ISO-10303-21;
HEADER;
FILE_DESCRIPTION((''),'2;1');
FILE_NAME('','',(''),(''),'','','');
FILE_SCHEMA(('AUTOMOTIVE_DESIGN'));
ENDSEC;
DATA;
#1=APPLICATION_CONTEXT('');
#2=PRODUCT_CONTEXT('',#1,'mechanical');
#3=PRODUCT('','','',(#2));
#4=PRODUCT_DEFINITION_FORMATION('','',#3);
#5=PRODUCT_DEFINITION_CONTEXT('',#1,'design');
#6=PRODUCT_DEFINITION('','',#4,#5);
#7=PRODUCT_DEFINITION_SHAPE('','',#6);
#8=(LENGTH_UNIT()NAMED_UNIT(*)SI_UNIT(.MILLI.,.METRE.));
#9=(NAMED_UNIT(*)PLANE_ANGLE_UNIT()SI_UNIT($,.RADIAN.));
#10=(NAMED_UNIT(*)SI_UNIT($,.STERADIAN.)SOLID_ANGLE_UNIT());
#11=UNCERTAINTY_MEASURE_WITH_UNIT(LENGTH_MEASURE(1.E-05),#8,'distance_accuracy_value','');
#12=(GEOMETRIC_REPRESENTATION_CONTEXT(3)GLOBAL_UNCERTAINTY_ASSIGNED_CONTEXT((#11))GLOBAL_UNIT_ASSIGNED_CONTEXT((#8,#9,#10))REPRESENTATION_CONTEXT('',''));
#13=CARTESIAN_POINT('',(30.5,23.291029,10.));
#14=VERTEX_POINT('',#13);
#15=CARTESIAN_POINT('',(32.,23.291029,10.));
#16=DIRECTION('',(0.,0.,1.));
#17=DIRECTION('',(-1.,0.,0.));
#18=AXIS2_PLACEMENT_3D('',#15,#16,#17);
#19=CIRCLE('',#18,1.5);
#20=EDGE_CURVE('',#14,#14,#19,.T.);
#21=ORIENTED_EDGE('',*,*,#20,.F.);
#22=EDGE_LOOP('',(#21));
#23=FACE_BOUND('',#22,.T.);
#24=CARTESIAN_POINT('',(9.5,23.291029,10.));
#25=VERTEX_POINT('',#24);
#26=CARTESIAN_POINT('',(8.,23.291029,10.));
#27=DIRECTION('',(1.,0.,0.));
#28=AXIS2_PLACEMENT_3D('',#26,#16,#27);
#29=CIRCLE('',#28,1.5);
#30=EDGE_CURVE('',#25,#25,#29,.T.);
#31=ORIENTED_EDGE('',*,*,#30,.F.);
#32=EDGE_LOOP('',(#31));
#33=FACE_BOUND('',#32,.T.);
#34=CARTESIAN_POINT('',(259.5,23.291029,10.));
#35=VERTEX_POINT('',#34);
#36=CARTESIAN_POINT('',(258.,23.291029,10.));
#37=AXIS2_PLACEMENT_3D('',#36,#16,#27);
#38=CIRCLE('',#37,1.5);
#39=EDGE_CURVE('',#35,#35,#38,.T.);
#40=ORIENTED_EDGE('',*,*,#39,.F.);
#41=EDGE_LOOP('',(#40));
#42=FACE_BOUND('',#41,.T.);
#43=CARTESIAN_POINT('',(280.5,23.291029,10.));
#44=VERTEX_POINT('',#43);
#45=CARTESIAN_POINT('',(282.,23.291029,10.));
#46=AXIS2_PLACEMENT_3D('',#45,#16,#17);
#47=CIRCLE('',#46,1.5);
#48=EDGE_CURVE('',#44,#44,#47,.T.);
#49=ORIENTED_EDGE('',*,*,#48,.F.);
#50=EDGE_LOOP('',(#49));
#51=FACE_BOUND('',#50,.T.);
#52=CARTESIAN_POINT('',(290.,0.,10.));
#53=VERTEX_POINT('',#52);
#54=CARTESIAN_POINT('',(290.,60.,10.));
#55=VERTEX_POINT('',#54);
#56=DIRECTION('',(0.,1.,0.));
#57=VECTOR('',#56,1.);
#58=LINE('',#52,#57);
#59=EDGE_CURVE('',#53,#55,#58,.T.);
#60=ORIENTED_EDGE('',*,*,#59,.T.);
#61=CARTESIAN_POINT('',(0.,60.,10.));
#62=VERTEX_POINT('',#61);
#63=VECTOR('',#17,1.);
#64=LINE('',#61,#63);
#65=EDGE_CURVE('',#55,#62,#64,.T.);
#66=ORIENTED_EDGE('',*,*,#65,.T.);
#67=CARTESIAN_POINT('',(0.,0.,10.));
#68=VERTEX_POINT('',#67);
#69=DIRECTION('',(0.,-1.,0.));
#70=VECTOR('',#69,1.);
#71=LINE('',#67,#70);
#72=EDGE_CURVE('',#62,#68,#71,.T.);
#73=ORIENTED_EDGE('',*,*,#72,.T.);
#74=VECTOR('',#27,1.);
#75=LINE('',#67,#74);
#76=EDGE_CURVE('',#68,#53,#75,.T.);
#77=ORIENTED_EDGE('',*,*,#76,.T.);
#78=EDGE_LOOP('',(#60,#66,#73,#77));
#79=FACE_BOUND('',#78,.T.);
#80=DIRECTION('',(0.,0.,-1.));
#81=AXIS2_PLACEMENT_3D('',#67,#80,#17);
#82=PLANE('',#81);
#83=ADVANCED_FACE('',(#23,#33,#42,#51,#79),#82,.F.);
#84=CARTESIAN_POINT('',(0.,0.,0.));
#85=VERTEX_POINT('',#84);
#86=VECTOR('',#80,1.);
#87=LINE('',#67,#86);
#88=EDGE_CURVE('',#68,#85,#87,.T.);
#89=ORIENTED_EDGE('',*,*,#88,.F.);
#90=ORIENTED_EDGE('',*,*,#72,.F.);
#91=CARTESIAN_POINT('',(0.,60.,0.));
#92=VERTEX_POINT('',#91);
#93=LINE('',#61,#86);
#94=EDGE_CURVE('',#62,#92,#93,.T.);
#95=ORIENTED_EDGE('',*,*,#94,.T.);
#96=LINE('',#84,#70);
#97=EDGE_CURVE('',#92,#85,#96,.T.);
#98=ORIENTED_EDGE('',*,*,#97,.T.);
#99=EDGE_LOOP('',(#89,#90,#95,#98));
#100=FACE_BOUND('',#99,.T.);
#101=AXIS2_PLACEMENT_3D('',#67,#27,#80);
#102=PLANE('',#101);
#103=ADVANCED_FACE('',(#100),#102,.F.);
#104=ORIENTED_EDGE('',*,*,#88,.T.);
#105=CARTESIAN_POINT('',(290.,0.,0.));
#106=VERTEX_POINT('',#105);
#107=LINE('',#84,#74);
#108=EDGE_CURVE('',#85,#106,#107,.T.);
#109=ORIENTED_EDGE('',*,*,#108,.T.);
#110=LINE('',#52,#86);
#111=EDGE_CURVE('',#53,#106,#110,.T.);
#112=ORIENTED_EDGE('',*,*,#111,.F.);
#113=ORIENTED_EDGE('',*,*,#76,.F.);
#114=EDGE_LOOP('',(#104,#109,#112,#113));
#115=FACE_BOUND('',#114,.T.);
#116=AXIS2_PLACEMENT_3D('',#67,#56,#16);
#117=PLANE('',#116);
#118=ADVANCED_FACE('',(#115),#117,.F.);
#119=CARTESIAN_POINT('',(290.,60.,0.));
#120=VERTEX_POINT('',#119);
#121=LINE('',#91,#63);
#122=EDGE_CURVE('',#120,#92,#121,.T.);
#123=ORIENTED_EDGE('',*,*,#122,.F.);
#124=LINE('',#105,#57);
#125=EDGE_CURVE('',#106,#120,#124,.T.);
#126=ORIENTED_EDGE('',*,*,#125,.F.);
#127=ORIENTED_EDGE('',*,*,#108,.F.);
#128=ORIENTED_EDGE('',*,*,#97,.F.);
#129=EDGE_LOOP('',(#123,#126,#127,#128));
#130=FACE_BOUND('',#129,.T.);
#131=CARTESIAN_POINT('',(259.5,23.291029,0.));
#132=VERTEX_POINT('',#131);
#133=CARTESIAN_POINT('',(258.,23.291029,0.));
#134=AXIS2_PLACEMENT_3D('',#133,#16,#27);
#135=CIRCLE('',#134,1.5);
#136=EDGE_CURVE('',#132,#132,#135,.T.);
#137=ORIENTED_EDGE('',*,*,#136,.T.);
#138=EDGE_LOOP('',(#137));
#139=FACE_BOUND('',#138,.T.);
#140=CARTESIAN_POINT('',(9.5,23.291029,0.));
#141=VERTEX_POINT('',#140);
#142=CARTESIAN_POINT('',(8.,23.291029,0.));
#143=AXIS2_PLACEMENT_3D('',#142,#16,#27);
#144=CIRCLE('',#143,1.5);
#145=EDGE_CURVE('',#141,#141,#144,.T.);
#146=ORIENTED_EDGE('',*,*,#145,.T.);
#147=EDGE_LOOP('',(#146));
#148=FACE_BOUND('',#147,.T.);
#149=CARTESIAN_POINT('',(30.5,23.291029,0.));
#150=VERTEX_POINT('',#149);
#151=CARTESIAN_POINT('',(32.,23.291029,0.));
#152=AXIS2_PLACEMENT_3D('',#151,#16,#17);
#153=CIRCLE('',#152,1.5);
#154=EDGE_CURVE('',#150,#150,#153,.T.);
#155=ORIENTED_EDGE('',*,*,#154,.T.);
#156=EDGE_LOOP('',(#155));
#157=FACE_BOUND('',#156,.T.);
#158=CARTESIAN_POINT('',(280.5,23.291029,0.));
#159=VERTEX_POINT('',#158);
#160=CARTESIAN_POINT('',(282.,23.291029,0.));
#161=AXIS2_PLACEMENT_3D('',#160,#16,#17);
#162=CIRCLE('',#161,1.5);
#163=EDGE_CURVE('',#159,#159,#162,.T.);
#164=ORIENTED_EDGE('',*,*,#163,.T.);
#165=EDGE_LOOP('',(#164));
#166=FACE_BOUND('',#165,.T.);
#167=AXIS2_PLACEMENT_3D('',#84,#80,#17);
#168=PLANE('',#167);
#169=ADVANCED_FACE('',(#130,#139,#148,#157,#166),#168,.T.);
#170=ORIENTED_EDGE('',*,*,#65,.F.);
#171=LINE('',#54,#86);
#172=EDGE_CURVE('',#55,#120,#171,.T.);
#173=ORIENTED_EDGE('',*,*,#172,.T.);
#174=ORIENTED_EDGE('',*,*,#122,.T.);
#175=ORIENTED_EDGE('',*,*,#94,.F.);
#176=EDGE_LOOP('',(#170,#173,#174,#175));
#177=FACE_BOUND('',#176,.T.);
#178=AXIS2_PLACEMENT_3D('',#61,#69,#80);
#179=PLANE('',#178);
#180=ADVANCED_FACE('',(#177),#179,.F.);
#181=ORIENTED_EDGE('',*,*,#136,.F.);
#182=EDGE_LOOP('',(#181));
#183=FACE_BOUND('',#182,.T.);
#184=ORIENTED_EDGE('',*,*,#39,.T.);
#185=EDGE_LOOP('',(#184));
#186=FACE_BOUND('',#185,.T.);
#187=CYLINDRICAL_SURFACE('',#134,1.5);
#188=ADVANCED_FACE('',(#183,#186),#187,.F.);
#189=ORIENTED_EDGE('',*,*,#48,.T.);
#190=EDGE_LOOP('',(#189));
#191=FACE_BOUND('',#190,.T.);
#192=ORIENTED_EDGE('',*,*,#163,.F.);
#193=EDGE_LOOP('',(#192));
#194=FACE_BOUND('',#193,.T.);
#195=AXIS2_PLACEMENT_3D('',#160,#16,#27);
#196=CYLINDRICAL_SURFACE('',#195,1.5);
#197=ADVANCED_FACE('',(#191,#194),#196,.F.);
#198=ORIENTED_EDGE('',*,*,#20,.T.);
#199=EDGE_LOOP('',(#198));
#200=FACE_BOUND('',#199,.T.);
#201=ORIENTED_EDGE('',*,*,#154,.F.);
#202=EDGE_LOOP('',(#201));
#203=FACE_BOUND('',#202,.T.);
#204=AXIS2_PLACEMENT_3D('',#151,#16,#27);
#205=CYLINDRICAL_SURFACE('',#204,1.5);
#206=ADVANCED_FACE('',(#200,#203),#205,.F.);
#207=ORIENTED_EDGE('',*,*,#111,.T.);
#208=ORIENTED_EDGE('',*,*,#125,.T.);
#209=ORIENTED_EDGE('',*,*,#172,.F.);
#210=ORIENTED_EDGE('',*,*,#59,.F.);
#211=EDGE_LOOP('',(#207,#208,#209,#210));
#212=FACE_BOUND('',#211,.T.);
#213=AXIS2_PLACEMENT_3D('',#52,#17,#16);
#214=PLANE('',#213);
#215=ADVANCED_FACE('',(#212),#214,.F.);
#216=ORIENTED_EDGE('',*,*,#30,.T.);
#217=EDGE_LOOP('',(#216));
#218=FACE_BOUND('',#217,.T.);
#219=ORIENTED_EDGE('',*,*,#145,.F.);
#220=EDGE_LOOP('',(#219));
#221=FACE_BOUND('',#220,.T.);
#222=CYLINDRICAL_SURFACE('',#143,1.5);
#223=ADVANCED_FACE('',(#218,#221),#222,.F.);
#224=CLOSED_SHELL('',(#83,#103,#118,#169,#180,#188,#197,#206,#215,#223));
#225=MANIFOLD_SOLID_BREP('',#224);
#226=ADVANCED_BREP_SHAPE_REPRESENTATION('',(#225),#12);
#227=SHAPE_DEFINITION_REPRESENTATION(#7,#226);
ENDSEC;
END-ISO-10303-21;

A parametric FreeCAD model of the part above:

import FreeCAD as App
import Part
import Sketcher

doc = App.newDocument("Part")
params = doc.addObject("Spreadsheet::Sheet", "Params")
for row, (alias, value) in enumerate([
    ("sketch1_width", "290 mm"),
    ("sketch1_height", "60 mm"),
    ("pad1_length", "10 mm"),
    ("sketch2_diameter", "3 mm"),
], start=1):
    params.set(f"A{row}", alias)
    params.set(f"B{row}", "=" + value)
    params.setAlias(f"B{row}", alias)

body = doc.addObject("PartDesign::Body", "Body")

# Sketch on XY plane
sketch1 = doc.addObject("Sketcher::SketchObject", "Sketch")
body.addObject(sketch1)
sketch1.AttachmentSupport = (doc.XY_Plane, [""])
sketch1.MapMode = "FlatFace"
sketch1.addGeometry([
    Part.LineSegment(App.Vector(0, 60, 0), App.Vector(0, 0, 0)),
    Part.LineSegment(App.Vector(0, 0, 0), App.Vector(290, 0, 0)),
    Part.LineSegment(App.Vector(290, 0, 0), App.Vector(290, 60, 0)),
    Part.LineSegment(App.Vector(290, 60, 0), App.Vector(0, 60, 0)),
], False)
sketch1.addConstraint([
    Sketcher.Constraint("Coincident", 0, 2, 1, 1),
    Sketcher.Constraint("Coincident", 1, 2, 2, 1),
    Sketcher.Constraint("Coincident", 2, 2, 3, 1),
    Sketcher.Constraint("Coincident", 3, 2, 0, 1),
    Sketcher.Constraint("Vertical", 0),
    Sketcher.Constraint("Horizontal", 1),
    Sketcher.Constraint("Vertical", 2),
    Sketcher.Constraint("Horizontal", 3),
    Sketcher.Constraint("Coincident", 0, 2, -1, 1),
    Sketcher.Constraint("DistanceX", 1, 1, 1, 2, 290.0),
    Sketcher.Constraint("DistanceY", 0, 2, 0, 1, 60.0),
])
sketch1.setExpression("Constraints[9]", "Params.sketch1_width")
sketch1.setExpression("Constraints[10]", "Params.sketch1_height")
pad1 = doc.addObject("PartDesign::Pad", "Pad")
body.addObject(pad1)
pad1.Profile = sketch1
pad1.setExpression("Length", "Params.pad1_length")

# Sketch on XY plane
sketch2 = doc.addObject("Sketcher::SketchObject", "Sketch001")
body.addObject(sketch2)
sketch2.AttachmentSupport = (doc.XY_Plane, [""])
sketch2.MapMode = "FlatFace"
sketch2.AttachmentOffset = App.Placement(App.Vector(0, 0, 10), App.Rotation())
sketch2.addGeometry([
    Part.Circle(App.Vector(8, 23.3, 0), App.Vector(0, 0, 1), 1.5),
    Part.Circle(App.Vector(32, 23.3, 0), App.Vector(0, 0, 1), 1.5),
    Part.Circle(App.Vector(282, 23.3, 0), App.Vector(0, 0, 1), 1.5),
    Part.Circle(App.Vector(258, 23.3, 0), App.Vector(0, 0, 1), 1.5),
], False)
sketch2.addConstraint([
    Sketcher.Constraint("Equal", 0, 1),
    Sketcher.Constraint("Equal", 1, 2),
    Sketcher.Constraint("Equal", 2, 3),
    Sketcher.Constraint("Horizontal", 0, 3, 1, 3),
    Sketcher.Constraint("Horizontal", 1, 3, 2, 3),
    Sketcher.Constraint("Horizontal", 2, 3, 3, 3),
    Sketcher.Constraint("Diameter", 0, 3.0),
    Sketcher.Constraint("DistanceX", -1, 1, 0, 3, 8.0),
    Sketcher.Constraint("DistanceX", -1, 1, 1, 3, 32.0),
    Sketcher.Constraint("DistanceX", -1, 1, 2, 3, 282.0),
    Sketcher.Constraint("DistanceX", -1, 1, 3, 3, 258.0),
    Sketcher.Constraint("DistanceY", -1, 1, 0, 3, 23.291029),
])
sketch2.setExpression("Constraints[6]", "Params.sketch2_diameter")
pocket1 = doc.addObject("PartDesign::Pocket", "Pocket")
body.addObject(pocket1)
pocket1.Profile = sketch2
pocket1.Type = "ThroughAll"

doc.recompute()
